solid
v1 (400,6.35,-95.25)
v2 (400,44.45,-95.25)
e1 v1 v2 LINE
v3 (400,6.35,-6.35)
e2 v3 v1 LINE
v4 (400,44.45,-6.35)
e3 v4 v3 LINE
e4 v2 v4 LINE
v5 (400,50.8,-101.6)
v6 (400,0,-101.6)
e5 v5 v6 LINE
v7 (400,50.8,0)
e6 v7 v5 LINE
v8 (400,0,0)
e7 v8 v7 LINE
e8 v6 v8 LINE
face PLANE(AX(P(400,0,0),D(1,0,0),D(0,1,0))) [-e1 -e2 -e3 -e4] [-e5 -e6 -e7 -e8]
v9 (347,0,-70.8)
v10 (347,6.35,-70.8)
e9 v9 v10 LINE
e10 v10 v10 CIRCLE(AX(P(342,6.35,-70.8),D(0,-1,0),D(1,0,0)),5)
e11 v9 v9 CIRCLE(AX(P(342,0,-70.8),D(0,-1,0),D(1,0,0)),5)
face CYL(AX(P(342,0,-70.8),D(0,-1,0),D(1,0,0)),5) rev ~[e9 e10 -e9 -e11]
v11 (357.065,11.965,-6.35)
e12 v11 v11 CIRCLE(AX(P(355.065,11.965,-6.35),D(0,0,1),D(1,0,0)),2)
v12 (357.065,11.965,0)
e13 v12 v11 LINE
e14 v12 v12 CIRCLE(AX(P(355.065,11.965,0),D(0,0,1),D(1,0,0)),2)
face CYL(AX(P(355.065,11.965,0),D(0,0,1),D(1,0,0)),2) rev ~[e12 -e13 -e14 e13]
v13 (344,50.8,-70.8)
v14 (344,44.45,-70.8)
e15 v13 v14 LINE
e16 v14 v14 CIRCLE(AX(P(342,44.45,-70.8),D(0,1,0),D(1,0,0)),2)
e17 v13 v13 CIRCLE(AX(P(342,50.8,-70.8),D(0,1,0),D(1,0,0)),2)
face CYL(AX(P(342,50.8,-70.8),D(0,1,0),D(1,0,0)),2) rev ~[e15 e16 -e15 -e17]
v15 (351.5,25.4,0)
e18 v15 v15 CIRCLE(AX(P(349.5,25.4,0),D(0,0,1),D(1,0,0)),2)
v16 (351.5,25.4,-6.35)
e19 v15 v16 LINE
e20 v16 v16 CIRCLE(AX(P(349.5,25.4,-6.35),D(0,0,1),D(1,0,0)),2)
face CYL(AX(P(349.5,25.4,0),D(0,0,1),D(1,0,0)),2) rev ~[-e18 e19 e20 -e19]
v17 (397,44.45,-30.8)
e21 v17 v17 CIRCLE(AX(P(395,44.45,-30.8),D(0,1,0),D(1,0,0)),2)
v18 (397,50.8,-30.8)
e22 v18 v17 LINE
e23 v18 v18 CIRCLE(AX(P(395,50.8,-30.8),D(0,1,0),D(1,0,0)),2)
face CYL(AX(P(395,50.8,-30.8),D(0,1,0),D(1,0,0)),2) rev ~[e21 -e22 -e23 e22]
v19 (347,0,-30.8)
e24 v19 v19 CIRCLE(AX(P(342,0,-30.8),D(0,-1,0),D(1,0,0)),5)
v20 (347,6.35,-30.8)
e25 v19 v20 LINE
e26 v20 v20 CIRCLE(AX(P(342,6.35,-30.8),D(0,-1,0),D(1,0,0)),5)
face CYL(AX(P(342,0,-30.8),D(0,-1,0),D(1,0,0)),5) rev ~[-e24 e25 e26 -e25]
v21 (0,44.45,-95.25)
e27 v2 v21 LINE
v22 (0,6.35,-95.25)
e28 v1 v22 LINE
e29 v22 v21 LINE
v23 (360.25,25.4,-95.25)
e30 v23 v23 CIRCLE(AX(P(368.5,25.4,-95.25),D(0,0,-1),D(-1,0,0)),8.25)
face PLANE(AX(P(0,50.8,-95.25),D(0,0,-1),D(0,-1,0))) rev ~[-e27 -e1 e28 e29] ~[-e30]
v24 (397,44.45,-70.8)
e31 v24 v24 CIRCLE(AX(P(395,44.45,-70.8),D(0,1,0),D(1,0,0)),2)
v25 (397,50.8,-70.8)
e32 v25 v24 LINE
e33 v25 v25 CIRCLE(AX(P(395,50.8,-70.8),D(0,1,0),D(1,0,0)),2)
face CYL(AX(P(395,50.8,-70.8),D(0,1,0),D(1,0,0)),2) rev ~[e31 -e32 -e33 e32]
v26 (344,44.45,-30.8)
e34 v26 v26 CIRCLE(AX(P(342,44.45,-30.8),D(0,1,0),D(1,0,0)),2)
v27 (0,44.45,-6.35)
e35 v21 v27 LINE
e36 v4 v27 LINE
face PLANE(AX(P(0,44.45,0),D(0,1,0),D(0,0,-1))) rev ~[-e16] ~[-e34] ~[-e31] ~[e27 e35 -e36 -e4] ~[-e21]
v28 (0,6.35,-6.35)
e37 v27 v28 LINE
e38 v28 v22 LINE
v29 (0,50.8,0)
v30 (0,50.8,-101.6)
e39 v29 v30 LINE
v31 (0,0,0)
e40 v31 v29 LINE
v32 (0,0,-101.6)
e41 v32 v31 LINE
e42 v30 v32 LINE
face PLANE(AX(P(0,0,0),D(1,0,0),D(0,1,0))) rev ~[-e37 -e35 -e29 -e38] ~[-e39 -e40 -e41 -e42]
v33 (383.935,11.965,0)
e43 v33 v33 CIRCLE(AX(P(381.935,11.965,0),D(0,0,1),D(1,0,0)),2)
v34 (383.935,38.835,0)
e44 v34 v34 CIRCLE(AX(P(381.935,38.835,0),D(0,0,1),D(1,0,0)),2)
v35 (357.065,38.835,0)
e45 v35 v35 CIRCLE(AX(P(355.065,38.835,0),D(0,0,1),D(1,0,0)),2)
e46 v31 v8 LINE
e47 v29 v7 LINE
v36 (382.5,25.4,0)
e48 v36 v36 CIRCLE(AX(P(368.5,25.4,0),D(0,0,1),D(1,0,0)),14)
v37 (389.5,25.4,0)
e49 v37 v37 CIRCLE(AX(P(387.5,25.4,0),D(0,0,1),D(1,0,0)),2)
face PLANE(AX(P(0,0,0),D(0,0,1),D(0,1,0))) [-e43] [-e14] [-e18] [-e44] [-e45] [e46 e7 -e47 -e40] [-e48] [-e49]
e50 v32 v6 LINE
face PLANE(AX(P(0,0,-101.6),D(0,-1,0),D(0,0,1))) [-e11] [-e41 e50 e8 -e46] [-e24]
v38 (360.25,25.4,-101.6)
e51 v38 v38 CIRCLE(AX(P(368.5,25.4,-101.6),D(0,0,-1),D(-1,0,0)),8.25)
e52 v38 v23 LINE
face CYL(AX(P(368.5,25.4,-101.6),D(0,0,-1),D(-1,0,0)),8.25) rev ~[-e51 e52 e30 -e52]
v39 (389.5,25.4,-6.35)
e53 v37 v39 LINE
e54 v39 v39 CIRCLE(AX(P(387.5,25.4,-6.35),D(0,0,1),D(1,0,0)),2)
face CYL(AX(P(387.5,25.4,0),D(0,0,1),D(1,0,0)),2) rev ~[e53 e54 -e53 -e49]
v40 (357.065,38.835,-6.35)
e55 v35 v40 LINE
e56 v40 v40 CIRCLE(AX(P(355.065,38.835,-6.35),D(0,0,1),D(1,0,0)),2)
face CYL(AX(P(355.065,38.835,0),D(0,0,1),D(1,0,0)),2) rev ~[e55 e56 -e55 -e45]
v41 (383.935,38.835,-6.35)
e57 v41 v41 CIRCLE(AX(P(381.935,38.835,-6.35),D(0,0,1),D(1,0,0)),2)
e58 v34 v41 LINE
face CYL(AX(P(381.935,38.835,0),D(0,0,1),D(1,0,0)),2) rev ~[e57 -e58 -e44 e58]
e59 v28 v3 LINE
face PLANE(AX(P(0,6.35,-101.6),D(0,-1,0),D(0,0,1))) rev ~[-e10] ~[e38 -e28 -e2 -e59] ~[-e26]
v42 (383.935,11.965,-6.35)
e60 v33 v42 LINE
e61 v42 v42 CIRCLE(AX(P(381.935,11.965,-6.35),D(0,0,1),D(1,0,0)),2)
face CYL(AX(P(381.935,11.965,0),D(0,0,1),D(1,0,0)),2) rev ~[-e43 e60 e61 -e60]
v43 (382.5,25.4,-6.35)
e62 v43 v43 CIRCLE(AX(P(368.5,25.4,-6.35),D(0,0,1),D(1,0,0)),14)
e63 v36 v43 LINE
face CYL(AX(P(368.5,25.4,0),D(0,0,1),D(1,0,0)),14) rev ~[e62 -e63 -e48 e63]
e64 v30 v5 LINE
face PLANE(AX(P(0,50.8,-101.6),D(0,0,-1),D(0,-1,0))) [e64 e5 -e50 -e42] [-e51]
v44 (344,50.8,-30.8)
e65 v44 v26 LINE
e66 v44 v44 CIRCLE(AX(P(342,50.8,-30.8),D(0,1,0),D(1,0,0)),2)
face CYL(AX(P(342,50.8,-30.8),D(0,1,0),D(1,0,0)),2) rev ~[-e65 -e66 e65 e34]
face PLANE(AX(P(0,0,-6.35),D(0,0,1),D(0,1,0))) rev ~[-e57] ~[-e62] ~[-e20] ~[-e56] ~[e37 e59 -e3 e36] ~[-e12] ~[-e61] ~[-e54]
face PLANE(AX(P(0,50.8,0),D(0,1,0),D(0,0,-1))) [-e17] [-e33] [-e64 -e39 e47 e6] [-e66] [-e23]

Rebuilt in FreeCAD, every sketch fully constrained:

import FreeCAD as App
import Part
import Sketcher
Q = App.Units.Quantity


def faces_at(feature, points):
    """Names of the faces that lie closest to the given points."""
    faces = feature.Shape.Faces
    near = lambda p: min(range(len(faces)), key=lambda i: faces[i].distToShape(Part.Vertex(*p))[0])
    return sorted({f"Face{near(p) + 1}" for p in points})

doc = App.newDocument("Part")
body = doc.addObject("PartDesign::Body", "Body")

# Sketch on YZ plane
sketch1 = body.newObject("Sketcher::SketchObject", "Sketch")
sketch1.AttachmentSupport = (doc.getObject("YZ_Plane"), [""])
sketch1.MapMode = "FlatFace"
sketch1.addGeometry([
    Part.LineSegment(App.Vector(51, 0, 0), App.Vector(0, 0, 0)),
    Part.LineSegment(App.Vector(0, 0, 0), App.Vector(0, -102, 0)),
    Part.LineSegment(App.Vector(0, -102, 0), App.Vector(51, -102, 0)),
    Part.LineSegment(App.Vector(51, -102, 0), App.Vector(51, 0, 0)),
], False)
sketch1.addConstraint([
    Sketcher.Constraint("Coincident", 0, 2, 1, 1),
    Sketcher.Constraint("Coincident", 1, 2, 2, 1),
    Sketcher.Constraint("Coincident", 2, 2, 3, 1),
    Sketcher.Constraint("Coincident", 3, 2, 0, 1),
    Sketcher.Constraint("Horizontal", 0),
    Sketcher.Constraint("Vertical", 1),
    Sketcher.Constraint("Horizontal", 2),
    Sketcher.Constraint("Vertical", 3),
    Sketcher.Constraint("Coincident", 0, 2, -1, 1),
    Sketcher.Constraint("DistanceX", 0, 2, 0, 1, Q("50.8 mm")),
    Sketcher.Constraint("DistanceY", 1, 2, 1, 1, Q("101.6 mm")),
])
pad1 = body.newObject("PartDesign::Pad", "Pad")
pad1.Profile = sketch1
pad1.Length = 400
doc.recompute()

thickness = body.newObject("PartDesign::Thickness", "Thickness")
thickness.Base = (pad1, faces_at(pad1, [(0, 16.933, -33.867), (400, 16.933, -33.867)]))
thickness.Value = 6.35
thickness.Reversed = True
thickness.Join = "Intersection"

# Sketch on XZ plane
sketch2 = body.newObject("Sketcher::SketchObject", "Sketch001")
sketch2.AttachmentSupport = (doc.getObject("XZ_Plane"), [""])
sketch2.MapMode = "FlatFace"
sketch2.AttachmentOffset = App.Placement(App.Vector(0, 0, -50.8), App.Rotation())
sketch2.addGeometry([
    Part.Circle(App.Vector(395, -70.8, 0), App.Vector(0, 0, 1), 2),
    Part.Circle(App.Vector(395, -30.8, 0), App.Vector(0, 0, 1), 2),
    Part.Circle(App.Vector(342, -70.8, 0), App.Vector(0, 0, 1), 2),
    Part.Circle(App.Vector(342, -30.8, 0), App.Vector(0, 0, 1), 2),
], False)
sketch2.addConstraint([
    Sketcher.Constraint("Equal", 0, 1),
    Sketcher.Constraint("Equal", 1, 2),
    Sketcher.Constraint("Equal", 2, 3),
    Sketcher.Constraint("Horizontal", 0, 3, 2, 3),
    Sketcher.Constraint("Horizontal", 1, 3, 3, 3),
    Sketcher.Constraint("Vertical", 0, 3, 1, 3),
    Sketcher.Constraint("Vertical", 2, 3, 3, 3),
    Sketcher.Constraint("Diameter", 0, Q("4 mm")),
    Sketcher.Constraint("DistanceY", 0, 3, 1, 3, Q("40 mm")),
    Sketcher.Constraint("DistanceX", 2, 3, 0, 3, Q("53 mm")),
    Sketcher.Constraint("DistanceX", -1, 1, 0, 3, Q("395 mm")),
    Sketcher.Constraint("DistanceY", 0, 3, -1, 1, Q("70.8 mm")),
])
pocket1 = body.newObject("PartDesign::Pocket", "Pocket")
pocket1.Profile = sketch2
pocket1.Length = 6.35
pocket1.Reversed = True

# Sketch on XY plane
sketch3 = body.newObject("Sketcher::SketchObject", "Sketch002")
sketch3.AttachmentSupport = (doc.getObject("XY_Plane"), [""])
sketch3.MapMode = "FlatFace"
sketch3.addGeometry([
    Part.Circle(App.Vector(355.1, 12, 0), App.Vector(0, 0, 1), 2),  # 0
    Part.Circle(App.Vector(381.9, 12, 0), App.Vector(0, 0, 1), 2),  # 1
    Part.Circle(App.Vector(381.9, 38.8, 0), App.Vector(0, 0, 1), 2),  # 2
    Part.Circle(App.Vector(387.5, 25.4, 0), App.Vector(0, 0, 1), 2),  # 3
    Part.Circle(App.Vector(355.1, 38.8, 0), App.Vector(0, 0, 1), 2),  # 4
    Part.Circle(App.Vector(349.5, 25.4, 0), App.Vector(0, 0, 1), 2),  # 5
    Part.Circle(App.Vector(368.5, 25.4, 0), App.Vector(0, 0, 1), 14),  # 6
], False)
sketch3.addConstraint([
    Sketcher.Constraint("Equal", 0, 1),
    Sketcher.Constraint("Equal", 1, 2),
    Sketcher.Constraint("Equal", 2, 3),
    Sketcher.Constraint("Equal", 3, 4),
    Sketcher.Constraint("Equal", 4, 5),
    Sketcher.Constraint("Horizontal", 0, 3, 1, 3),
    Sketcher.Constraint("Horizontal", 2, 3, 4, 3),
    Sketcher.Constraint("Horizontal", 3, 3, 5, 3),
    Sketcher.Constraint("Horizontal", 5, 3, 6, 3),
    Sketcher.Constraint("Vertical", 1, 3, 2, 3),
    Sketcher.Constraint("Vertical", 0, 3, 4, 3),
    Sketcher.Constraint("Diameter", 0, Q("4 mm")),
    Sketcher.Constraint("Diameter", 6, Q("28 mm")),
    Sketcher.Constraint("DistanceX", 5, 3, 3, 3, Q("38 mm")),
    Sketcher.Constraint("DistanceX", 6, 3, 3, 3, Q("19 mm")),
    Sketcher.Constraint("DistanceX", -1, 1, 3, 3, Q("387.5 mm")),
    Sketcher.Constraint("DistanceY", -1, 1, 3, 3, Q("25.4 mm")),
    Sketcher.Constraint("DistanceX", 0, 3, 1, 3, Q("26.87 mm")),
    Sketcher.Constraint("DistanceY", 1, 3, 2, 3, Q("26.87 mm")),
    Sketcher.Constraint("DistanceX", -1, 1, 0, 3, Q("355.065 mm")),
    Sketcher.Constraint("DistanceY", -1, 1, 0, 3, Q("11.965 mm")),
])
pocket2 = body.newObject("PartDesign::Pocket", "Pocket001")
pocket2.Profile = sketch3
pocket2.Length = 6.35

# Sketch on XY plane
sketch4 = body.newObject("Sketcher::SketchObject", "Sketch003")
sketch4.AttachmentSupport = (doc.getObject("XY_Plane"), [""])
sketch4.MapMode = "FlatFace"
sketch4.AttachmentOffset = App.Placement(App.Vector(0, 0, -101.6), App.Rotation())
sketch4.addGeometry(Part.Circle(App.Vector(368, 25, 0), App.Vector(0, 0, 1), 8), False)
sketch4.addConstraint([
    Sketcher.Constraint("Diameter", 0, Q("16.5 mm")),
    Sketcher.Constraint("DistanceX", -1, 1, 0, 3, Q("368.5 mm")),
    Sketcher.Constraint("DistanceY", -1, 1, 0, 3, Q("25.4 mm")),
])
pocket3 = body.newObject("PartDesign::Pocket", "Pocket002")
pocket3.Profile = sketch4
pocket3.Length = 6.35
pocket3.Reversed = True

# Sketch on XZ plane
sketch5 = body.newObject("Sketcher::SketchObject", "Sketch004")
sketch5.AttachmentSupport = (doc.getObject("XZ_Plane"), [""])
sketch5.MapMode = "FlatFace"
sketch5.addGeometry([
    Part.Circle(App.Vector(342, -71, 0), App.Vector(0, 0, 1), 5),
    Part.Circle(App.Vector(342, -31, 0), App.Vector(0, 0, 1), 5),
], False)
sketch5.addConstraint([
    Sketcher.Constraint("Equal", 0, 1),
    Sketcher.Constraint("Vertical", 0, 3, 1, 3),
    Sketcher.Constraint("Diameter", 0, Q("10 mm")),
    Sketcher.Constraint("DistanceX", -1, 1, 0, 3, Q("342 mm")),
    Sketcher.Constraint("DistanceY", 0, 3, 1, 3, Q("40 mm")),
    Sketcher.Constraint("DistanceY", 0, 3, -1, 1, Q("70.8 mm")),
])
pocket4 = body.newObject("PartDesign::Pocket", "Pocket003")
pocket4.Profile = sketch5
pocket4.Length = 6.35

doc.recompute()
